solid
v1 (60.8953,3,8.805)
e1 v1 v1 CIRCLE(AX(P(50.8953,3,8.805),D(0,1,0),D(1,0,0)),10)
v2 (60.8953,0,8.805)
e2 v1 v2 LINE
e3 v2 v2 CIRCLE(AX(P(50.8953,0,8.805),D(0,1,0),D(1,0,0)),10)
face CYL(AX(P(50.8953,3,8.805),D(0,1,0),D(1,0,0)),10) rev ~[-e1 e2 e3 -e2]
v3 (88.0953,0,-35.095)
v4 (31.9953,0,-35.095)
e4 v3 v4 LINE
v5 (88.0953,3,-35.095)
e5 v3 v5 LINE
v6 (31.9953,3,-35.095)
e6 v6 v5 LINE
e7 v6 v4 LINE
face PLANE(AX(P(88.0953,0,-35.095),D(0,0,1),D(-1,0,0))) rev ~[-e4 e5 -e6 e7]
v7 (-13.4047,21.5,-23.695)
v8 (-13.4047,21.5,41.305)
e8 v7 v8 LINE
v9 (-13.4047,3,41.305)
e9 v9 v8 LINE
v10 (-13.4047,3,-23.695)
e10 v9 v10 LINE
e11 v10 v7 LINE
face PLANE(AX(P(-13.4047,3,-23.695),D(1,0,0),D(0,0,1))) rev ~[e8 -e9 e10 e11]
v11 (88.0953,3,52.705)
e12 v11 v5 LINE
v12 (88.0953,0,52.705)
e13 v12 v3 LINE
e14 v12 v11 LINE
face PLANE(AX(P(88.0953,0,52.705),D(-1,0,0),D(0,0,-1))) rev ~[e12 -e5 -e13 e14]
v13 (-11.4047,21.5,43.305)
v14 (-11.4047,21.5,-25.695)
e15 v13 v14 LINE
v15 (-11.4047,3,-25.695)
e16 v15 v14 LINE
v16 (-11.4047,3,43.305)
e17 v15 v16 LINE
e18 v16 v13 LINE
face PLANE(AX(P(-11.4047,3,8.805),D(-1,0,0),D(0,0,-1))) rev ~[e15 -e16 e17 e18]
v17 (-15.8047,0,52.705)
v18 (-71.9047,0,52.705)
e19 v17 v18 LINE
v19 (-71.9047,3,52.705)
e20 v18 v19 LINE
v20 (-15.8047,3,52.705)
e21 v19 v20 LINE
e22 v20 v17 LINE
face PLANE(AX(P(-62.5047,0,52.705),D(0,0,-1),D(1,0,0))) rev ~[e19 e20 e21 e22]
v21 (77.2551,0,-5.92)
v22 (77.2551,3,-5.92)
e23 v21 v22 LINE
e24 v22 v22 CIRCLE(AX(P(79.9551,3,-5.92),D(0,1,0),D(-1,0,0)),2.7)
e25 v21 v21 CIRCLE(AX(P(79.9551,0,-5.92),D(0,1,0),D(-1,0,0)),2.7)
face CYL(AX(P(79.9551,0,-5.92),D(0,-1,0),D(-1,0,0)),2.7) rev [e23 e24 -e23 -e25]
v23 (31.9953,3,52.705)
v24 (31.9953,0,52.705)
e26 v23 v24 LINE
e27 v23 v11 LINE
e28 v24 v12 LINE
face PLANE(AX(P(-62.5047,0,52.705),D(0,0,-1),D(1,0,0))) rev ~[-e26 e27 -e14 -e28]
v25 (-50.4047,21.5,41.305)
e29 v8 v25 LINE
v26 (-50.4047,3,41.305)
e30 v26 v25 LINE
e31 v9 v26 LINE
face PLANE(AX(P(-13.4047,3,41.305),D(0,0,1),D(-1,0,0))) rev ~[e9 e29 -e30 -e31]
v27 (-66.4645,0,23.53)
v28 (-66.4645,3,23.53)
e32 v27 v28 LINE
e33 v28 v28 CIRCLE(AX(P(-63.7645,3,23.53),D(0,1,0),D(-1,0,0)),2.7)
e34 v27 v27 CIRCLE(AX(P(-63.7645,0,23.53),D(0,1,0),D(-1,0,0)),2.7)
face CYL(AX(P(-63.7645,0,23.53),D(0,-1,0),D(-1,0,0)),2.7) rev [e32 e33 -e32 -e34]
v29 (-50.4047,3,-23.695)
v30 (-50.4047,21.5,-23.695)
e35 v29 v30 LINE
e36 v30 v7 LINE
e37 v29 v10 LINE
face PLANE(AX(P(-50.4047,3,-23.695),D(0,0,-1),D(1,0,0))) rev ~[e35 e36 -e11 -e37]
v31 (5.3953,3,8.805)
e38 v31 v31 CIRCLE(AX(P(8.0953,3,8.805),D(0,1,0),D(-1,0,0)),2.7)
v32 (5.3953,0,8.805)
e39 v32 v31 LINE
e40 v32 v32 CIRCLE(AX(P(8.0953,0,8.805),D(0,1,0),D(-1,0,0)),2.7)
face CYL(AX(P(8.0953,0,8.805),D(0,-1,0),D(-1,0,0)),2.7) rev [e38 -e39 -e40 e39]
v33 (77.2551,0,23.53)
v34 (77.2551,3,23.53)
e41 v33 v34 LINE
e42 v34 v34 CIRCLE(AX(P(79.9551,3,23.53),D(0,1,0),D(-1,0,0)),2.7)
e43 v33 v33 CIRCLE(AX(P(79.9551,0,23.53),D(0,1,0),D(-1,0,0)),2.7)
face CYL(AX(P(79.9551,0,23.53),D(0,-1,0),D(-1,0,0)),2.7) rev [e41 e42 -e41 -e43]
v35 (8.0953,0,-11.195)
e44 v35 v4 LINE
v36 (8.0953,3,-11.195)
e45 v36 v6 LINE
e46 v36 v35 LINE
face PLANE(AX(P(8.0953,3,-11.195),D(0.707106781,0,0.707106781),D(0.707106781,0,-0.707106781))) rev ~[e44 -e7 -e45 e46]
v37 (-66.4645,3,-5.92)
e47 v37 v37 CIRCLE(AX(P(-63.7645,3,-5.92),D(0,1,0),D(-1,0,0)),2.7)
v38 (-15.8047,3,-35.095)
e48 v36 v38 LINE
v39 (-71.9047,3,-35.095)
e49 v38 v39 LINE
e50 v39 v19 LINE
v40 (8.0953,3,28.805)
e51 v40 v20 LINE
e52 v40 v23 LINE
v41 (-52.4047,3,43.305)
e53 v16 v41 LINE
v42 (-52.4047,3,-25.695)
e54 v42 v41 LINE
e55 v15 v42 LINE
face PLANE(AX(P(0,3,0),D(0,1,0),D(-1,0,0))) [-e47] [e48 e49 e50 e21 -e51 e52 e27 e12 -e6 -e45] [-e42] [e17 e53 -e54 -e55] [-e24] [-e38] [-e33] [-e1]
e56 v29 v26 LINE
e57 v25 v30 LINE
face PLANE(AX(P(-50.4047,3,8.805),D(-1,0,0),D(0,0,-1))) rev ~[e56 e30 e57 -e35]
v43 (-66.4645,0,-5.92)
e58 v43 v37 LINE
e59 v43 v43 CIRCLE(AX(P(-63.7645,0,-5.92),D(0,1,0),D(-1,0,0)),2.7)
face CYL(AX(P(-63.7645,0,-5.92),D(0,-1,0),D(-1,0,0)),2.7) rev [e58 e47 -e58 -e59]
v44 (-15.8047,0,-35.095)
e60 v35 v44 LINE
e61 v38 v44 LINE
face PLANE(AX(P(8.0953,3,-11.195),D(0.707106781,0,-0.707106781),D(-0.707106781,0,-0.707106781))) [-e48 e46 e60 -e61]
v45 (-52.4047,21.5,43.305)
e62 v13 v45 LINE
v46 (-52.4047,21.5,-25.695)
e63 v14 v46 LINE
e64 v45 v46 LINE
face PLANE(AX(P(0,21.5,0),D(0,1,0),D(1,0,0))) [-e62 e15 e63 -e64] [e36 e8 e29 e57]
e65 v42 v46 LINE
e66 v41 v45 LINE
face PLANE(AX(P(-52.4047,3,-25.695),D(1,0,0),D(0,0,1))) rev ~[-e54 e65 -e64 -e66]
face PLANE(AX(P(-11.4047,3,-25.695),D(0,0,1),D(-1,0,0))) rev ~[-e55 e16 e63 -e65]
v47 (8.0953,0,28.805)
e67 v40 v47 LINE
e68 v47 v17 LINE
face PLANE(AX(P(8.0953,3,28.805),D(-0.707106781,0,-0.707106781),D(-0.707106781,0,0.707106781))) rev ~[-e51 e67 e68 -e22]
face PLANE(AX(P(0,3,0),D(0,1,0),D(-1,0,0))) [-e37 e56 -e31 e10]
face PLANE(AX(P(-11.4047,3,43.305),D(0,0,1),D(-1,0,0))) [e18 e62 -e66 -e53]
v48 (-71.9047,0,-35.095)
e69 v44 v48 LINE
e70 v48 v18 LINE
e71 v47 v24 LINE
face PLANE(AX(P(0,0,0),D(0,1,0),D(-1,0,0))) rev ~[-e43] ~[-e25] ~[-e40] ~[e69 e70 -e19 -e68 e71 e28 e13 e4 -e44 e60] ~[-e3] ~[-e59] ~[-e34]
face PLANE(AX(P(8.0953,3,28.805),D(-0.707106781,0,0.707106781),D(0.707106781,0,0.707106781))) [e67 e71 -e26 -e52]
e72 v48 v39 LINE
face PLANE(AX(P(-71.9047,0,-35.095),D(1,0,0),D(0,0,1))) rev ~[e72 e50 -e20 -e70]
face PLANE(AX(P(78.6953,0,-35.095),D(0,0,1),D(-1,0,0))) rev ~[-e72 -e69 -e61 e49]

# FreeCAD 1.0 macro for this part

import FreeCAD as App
import Part
import Sketcher
from FreeCAD import Vector
Q = App.Units.Quantity


def add_polygon(sketch, points):
    """Adds a closed chain of lines whose ends are joined by coincident constraints."""
    first, n = sketch.GeometryCount, len(points)
    for a, b in zip(points, points[1:] + points[:1]):
        sketch.addGeometry(Part.LineSegment(App.Vector(*a, 0), App.Vector(*b, 0)), False)
    for i in range(n):
        sketch.addConstraint(Sketcher.Constraint("Coincident", first + i, 2, first + (i + 1) % n, 1))

doc = App.newDocument("Part")
body = doc.addObject("PartDesign::Body", "Body")

sketch1 = body.newObject("Sketcher::SketchObject", "Sketch")
sketch1.AttachmentSupport = (doc.getObject("XZ_Plane"), [""])
sketch1.MapMode = "FlatFace"
add_polygon(sketch1, [(88.0953, 52.705), (88.0953, -35.095), (-71.9047, -35.095), (-71.9047, 52.705)])
sketch1.addGeometry(Part.Circle(Vector(79.9551, -5.92, 0), Vector(0, 0, 1), 2.7), False)
sketch1.addGeometry(Part.Circle(Vector(-63.7645, -5.92, 0), Vector(0, 0, 1), 2.7), False)
sketch1.addGeometry(Part.Circle(Vector(79.9551, 23.53, 0), Vector(0, 0, 1), 2.7), False)
sketch1.addGeometry(Part.Circle(Vector(8.0953, 8.805, 0), Vector(0, 0, 1), 2.7), False)
sketch1.addGeometry(Part.Circle(Vector(-63.7645, 23.53, 0), Vector(0, 0, 1), 2.7), False)
sketch1.addConstraint(Sketcher.Constraint("Vertical", 0))
sketch1.addConstraint(Sketcher.Constraint("Horizontal", 1))
sketch1.addConstraint(Sketcher.Constraint("Vertical", 2))
sketch1.addConstraint(Sketcher.Constraint("Horizontal", 3))
sketch1.addConstraint(Sketcher.Constraint("Equal", 4, 5))
sketch1.addConstraint(Sketcher.Constraint("Equal", 5, 6))
sketch1.addConstraint(Sketcher.Constraint("Equal", 6, 7))
sketch1.addConstraint(Sketcher.Constraint("Equal", 7, 8))
sketch1.addConstraint(Sketcher.Constraint("Horizontal", 4, 3, 5, 3))
sketch1.addConstraint(Sketcher.Constraint("Horizontal", 6, 3, 8, 3))
sketch1.addConstraint(Sketcher.Constraint("Vertical", 4, 3, 6, 3))
sketch1.addConstraint(Sketcher.Constraint("Vertical", 5, 3, 8, 3))
sketch1.addConstraint(Sketcher.Constraint("Diameter", 4, Q("5.4 mm")))
sketch1.addConstraint(Sketcher.Constraint("DistanceX", 1, 2, 1, 1, Q("160 mm")))
sketch1.addConstraint(Sketcher.Constraint("DistanceY", 0, 2, 0, 1, Q("87.8 mm")))
sketch1.addConstraint(Sketcher.Constraint("DistanceX", 7, 3, 0, 2, Q("80 mm")))
sketch1.addConstraint(Sketcher.Constraint("DistanceY", 0, 2, 7, 3, Q("43.9 mm")))
sketch1.addConstraint(Sketcher.Constraint("DistanceY", 4, 3, -1, 1, Q("5.92 mm")))
sketch1.addConstraint(Sketcher.Constraint("DistanceY", -1, 1, 6, 3, Q("23.53 mm")))
sketch1.addConstraint(Sketcher.Constraint("DistanceX", -1, 1, 4, 3, Q("79.955 mm")))
sketch1.addConstraint(Sketcher.Constraint("DistanceY", -1, 1, 7, 3, Q("8.805 mm")))
sketch1.addConstraint(Sketcher.Constraint("DistanceX", 5, 3, -1, 1, Q("63.7645 mm")))
sketch1.addConstraint(Sketcher.Constraint("DistanceX", -1, 1, 7, 3, Q("8.0953 mm")))
pad1 = body.newObject("PartDesign::Pad", "Pad")
pad1.Profile = sketch1
pad1.Length = 3
pad1.Reversed = True

sketch2 = body.newObject("Sketcher::SketchObject", "Sketch001")
sketch2.AttachmentSupport = (doc.getObject("XZ_Plane"), [""])
sketch2.MapMode = "FlatFace"
sketch2.AttachmentOffset = App.Placement(Vector(0, 0, -3), App.Rotation())
add_polygon(sketch2, [(-15.8047, -35.095), (8.0953, -11.195), (31.9953, -35.095)])
add_polygon(sketch2, [(31.9953, 52.705), (8.0953, 28.805), (-15.8047, 52.705)])
sketch2.addConstraint(Sketcher.Constraint("Horizontal", 2))
sketch2.addConstraint(Sketcher.Constraint("Horizontal", 5))
sketch2.addConstraint(Sketcher.Constraint("Perpendicular", 0, 1))
sketch2.addConstraint(Sketcher.Constraint("Perpendicular", 1, 3))
sketch2.addConstraint(Sketcher.Constraint("Perpendicular", 3, 4))
sketch2.addConstraint(Sketcher.Constraint("Vertical", 0, 2, 3, 2))
sketch2.addConstraint(Sketcher.Constraint("Vertical", 2, 2, 4, 2))
sketch2.addConstraint(Sketcher.Constraint("Vertical", 1, 2, 5, 2))
sketch2.addConstraint(Sketcher.Constraint("DistanceY", 0, 2, 3, 2, Q("40 mm")))
sketch2.addConstraint(Sketcher.Constraint("DistanceX", 2, 2, 2, 1, Q("47.8 mm")))
sketch2.addConstraint(Sketcher.Constraint("DistanceY", 0, 2, -1, 1, Q("11.195 mm")))
sketch2.addConstraint(Sketcher.Constraint("DistanceX", -1, 1, 0, 2, Q("8.0953 mm")))
pocket1 = body.newObject("PartDesign::Pocket", "Pocket")
pocket1.Profile = sketch2
pocket1.Length = 3
pocket1.Reversed = True

sketch3 = body.newObject("Sketcher::SketchObject", "Sketch002")
sketch3.AttachmentSupport = (doc.getObject("XZ_Plane"), [""])
sketch3.MapMode = "FlatFace"
sketch3.AttachmentOffset = App.Placement(Vector(0, 0, -3), App.Rotation())
sketch3.addGeometry(Part.Circle(Vector(-34.7047, 8.805, 0), Vector(0, 0, 1), 10), False)
sketch3.addConstraint(Sketcher.Constraint("Diameter", 0, Q("20 mm")))
sketch3.addConstraint(Sketcher.Constraint("DistanceY", -1, 1, 0, 3, Q("8.805 mm")))
sketch3.addConstraint(Sketcher.Constraint("DistanceX", 0, 3, -1, 1, Q("34.7047 mm")))
pocket2 = body.newObject("PartDesign::Pocket", "Pocket001")
pocket2.Profile = sketch3
pocket2.Length = 3
pocket2.Reversed = True

sketch4 = body.newObject("Sketcher::SketchObject", "Sketch003")
sketch4.AttachmentSupport = (doc.getObject("XZ_Plane"), [""])
sketch4.MapMode = "FlatFace"
sketch4.AttachmentOffset = App.Placement(Vector(0, 0, -3), App.Rotation())
sketch4.addGeometry(Part.Circle(Vector(50.8953, 8.805, 0), Vector(0, 0, 1), 10), False)
sketch4.addConstraint(Sketcher.Constraint("Diameter", 0, Q("20 mm")))
sketch4.addConstraint(Sketcher.Constraint("DistanceY", -1, 1, 0, 3, Q("8.805 mm")))
sketch4.addConstraint(Sketcher.Constraint("DistanceX", -1, 1, 0, 3, Q("50.8953 mm")))
pocket3 = body.newObject("PartDesign::Pocket", "Pocket002")
pocket3.Profile = sketch4
pocket3.Length = 3
pocket3.Reversed = True

sketch5 = body.newObject("Sketcher::SketchObject", "Sketch004")
sketch5.AttachmentSupport = (doc.getObject("XZ_Plane"), [""])
sketch5.MapMode = "FlatFace"
sketch5.AttachmentOffset = App.Placement(Vector(0, 0, -3), App.Rotation())
add_polygon(sketch5, [(-18.5618, -4.8798), (-48.5025, -4.8798), (-48.5025, 20.2546), (-18.5618, 20.2546)])
sketch5.addConstraint(Sketcher.Constraint("Horizontal", 0))
sketch5.addConstraint(Sketcher.Constraint("Vertical", 1))
sketch5.addConstraint(Sketcher.Constraint("Horizontal", 2))
sketch5.addConstraint(Sketcher.Constraint("Vertical", 3))
sketch5.addConstraint(Sketcher.Constraint("DistanceX", 0, 2, 0, 1, Q("29.9407 mm")))
sketch5.addConstraint(Sketcher.Constraint("DistanceY", 1, 1, 1, 2, Q("25.1344 mm")))
sketch5.addConstraint(Sketcher.Constraint("DistanceX", 0, 2, -1, 1, Q("48.5025 mm")))
sketch5.addConstraint(Sketcher.Constraint("DistanceY", 0, 2, -1, 1, Q("4.8798 mm")))
pad2 = body.newObject("PartDesign::Pad", "Pad001")
pad2.Profile = sketch5
pad2.Length = 3

sketch6 = body.newObject("Sketcher::SketchObject", "Sketch005")
sketch6.AttachmentSupport = (doc.getObject("XZ_Plane"), [""])
sketch6.MapMode = "FlatFace"
sketch6.AttachmentOffset = App.Placement(Vector(0, 0, -3), App.Rotation())
add_polygon(sketch6, [(-52.4047, -25.695), (-52.4047, 43.305), (-11.4047, 43.305), (-11.4047, -25.695)])
add_polygon(sketch6, [(-13.4047, -23.695), (-13.4047, 41.305), (-50.4047, 41.305), (-50.4047, -23.695)])
sketch6.addConstraint(Sketcher.Constraint("Vertical", 0))
sketch6.addConstraint(Sketcher.Constraint("Horizontal", 1))
sketch6.addConstraint(Sketcher.Constraint("Vertical", 2))
sketch6.addConstraint(Sketcher.Constraint("Horizontal", 3))
sketch6.addConstraint(Sketcher.Constraint("Vertical", 4))
sketch6.addConstraint(Sketcher.Constraint("Horizontal", 5))
sketch6.addConstraint(Sketcher.Constraint("Vertical", 6))
sketch6.addConstraint(Sketcher.Constraint("Horizontal", 7))
sketch6.addConstraint(Sketcher.Constraint("DistanceX", 1, 1, 1, 2, Q("41 mm")))
sketch6.addConstraint(Sketcher.Constraint("DistanceY", 0, 1, 0, 2, Q("69 mm")))
sketch6.addConstraint(Sketcher.Constraint("DistanceX", 4, 2, 1, 2, Q("2 mm")))
sketch6.addConstraint(Sketcher.Constraint("DistanceY", 4, 2, 1, 2, Q("2 mm")))
sketch6.addConstraint(Sketcher.Constraint("DistanceX", 0, 2, 5, 2, Q("2 mm")))
sketch6.addConstraint(Sketcher.Constraint("DistanceY", 3, 2, 6, 2, Q("2 mm")))
sketch6.addConstraint(Sketcher.Constraint("DistanceY", -1, 1, 0, 2, Q("43.305 mm")))
sketch6.addConstraint(Sketcher.Constraint("DistanceX", 0, 2, -1, 1, Q("52.4047 mm")))
pad3 = body.newObject("PartDesign::Pad", "Pad002")
pad3.Profile = sketch6
pad3.Length = 18.5
pad3.Reversed = True

doc.recompute()
